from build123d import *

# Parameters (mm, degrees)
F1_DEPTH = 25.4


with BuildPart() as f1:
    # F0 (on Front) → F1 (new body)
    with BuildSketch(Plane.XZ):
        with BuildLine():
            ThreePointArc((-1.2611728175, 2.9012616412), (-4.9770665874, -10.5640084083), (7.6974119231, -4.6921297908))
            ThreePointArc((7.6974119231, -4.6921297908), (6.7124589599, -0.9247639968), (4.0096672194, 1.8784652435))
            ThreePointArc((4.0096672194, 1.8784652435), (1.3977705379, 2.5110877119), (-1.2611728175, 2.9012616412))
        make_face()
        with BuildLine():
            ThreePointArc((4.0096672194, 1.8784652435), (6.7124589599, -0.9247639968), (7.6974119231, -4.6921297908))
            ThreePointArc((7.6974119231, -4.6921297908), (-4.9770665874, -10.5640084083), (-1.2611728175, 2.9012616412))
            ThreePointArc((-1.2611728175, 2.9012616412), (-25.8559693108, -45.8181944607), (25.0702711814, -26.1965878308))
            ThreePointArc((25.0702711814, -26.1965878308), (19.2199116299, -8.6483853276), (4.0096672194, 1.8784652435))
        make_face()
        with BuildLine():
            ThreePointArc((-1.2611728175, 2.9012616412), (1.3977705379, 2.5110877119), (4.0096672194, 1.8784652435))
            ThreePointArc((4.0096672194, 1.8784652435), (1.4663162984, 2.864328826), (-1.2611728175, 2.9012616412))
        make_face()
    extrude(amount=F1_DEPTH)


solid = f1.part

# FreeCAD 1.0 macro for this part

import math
import FreeCAD as App
import Part
import Sketcher
Q = App.Units.Quantity

doc = App.newDocument("Part")
body = doc.addObject("PartDesign::Body", "Body")

sketch1 = doc.addObject("Sketcher::SketchObject", "Sketch")
body.addObject(sketch1)
sketch1.AttachmentSupport = (doc.XZ_Plane, [""])
sketch1.MapMode = "FlatFace"
sketch1.addGeometry(Part.ArcOfCircle(Part.Circle(App.Vector(-4, -26, 0), App.Vector(0, 0, 1), 29), math.radians(84), math.radians(434)), False)
sketch1.addGeometry(Part.ArcOfCircle(Part.Circle(App.Vector(0, -5, 0), App.Vector(0, 0, 1), 8), math.radians(59), math.radians(99)), False)
sketch1.addConstraint(Sketcher.Constraint("Coincident", 0, 1, 1, 2))
sketch1.addConstraint(Sketcher.Constraint("Coincident", 1, 1, 0, 2))
sketch1.addConstraint(Sketcher.Constraint("PointOnObject", 1, 3, -2))
sketch1.addConstraint(Sketcher.Constraint("Radius", 0, Q("29.24317 mm")))
sketch1.addConstraint(Sketcher.Constraint("Radius", 1, Q("7.697412 mm")))
sketch1.addConstraint(Sketcher.Constraint("DistanceX", 0, 3, -1, 1, Q("4.172899 mm")))
sketch1.addConstraint(Sketcher.Constraint("DistanceY", 1, 3, -1, 1, Q("4.69213 mm")))
sketch1.addConstraint(Sketcher.Constraint("DistanceY", -1, 1, 0, 1, Q("2.901262 mm")))
pad1 = doc.addObject("PartDesign::Pad", "Pad")
body.addObject(pad1)
pad1.Profile = sketch1
pad1.Length = Q("1 in")

doc.recompute()
